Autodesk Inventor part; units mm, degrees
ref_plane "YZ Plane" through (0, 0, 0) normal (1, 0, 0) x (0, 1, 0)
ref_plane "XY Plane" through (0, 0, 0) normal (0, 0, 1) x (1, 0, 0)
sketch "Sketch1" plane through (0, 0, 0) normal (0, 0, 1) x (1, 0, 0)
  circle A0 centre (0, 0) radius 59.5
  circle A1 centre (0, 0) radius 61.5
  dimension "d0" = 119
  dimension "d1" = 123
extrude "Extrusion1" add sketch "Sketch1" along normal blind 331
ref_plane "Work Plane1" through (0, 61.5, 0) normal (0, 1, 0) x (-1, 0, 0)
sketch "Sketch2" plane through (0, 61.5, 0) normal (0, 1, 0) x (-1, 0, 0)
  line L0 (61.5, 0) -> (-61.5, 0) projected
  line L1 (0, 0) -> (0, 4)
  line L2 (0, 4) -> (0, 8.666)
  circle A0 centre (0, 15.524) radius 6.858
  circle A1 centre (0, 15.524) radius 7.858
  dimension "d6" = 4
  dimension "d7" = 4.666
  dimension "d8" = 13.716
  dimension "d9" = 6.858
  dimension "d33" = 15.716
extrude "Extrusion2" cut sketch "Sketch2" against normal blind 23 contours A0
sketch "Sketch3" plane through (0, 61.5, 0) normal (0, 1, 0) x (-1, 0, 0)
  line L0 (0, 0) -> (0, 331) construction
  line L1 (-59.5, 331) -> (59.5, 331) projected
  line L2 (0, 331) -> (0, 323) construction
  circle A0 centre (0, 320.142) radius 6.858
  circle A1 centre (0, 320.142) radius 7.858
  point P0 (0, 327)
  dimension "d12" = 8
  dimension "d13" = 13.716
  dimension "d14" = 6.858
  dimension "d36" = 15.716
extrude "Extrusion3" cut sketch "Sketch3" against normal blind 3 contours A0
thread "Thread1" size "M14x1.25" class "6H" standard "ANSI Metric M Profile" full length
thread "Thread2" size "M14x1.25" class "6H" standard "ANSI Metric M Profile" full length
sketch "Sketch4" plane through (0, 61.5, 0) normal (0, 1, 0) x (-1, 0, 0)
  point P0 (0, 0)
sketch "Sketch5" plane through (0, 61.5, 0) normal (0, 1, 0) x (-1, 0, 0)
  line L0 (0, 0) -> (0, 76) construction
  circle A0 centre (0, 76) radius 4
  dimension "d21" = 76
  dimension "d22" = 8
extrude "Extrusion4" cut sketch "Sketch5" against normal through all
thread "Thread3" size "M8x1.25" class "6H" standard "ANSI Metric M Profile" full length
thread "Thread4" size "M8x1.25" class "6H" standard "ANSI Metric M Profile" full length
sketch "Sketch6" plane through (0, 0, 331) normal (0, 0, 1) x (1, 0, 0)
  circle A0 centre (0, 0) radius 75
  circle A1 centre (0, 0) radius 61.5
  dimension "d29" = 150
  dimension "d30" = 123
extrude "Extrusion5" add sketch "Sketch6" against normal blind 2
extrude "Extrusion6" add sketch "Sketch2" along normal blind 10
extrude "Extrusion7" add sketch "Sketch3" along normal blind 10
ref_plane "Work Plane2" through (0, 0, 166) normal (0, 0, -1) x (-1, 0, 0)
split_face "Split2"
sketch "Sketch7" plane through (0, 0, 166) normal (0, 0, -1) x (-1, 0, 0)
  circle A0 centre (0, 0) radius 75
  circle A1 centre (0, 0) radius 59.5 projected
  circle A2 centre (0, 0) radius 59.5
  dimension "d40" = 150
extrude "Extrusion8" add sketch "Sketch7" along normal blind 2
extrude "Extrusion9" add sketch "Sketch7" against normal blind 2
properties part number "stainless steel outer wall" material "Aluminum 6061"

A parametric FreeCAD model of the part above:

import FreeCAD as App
import Part
import Sketcher
Q = App.Units.Quantity

doc = App.newDocument("Part")
body = doc.addObject("PartDesign::Body", "Body")
body.AllowCompound = True

sketch1 = body.newObject("Sketcher::SketchObject", "Sketch")
sketch1.AttachmentSupport = (doc.getObject("XY_Plane"), [""])
sketch1.MapMode = "FlatFace"
sketch1.addGeometry([
    Part.Circle(App.Vector(0, 0, 0), App.Vector(0, 0, 1), 62),
    Part.Circle(App.Vector(0, 0, 0), App.Vector(0, 0, 1), 60),
], False)
sketch1.addConstraint([
    Sketcher.Constraint("Coincident", 0, 3, -1, 1),
    Sketcher.Constraint("Coincident", 1, 3, -1, 1),
    Sketcher.Constraint("Diameter", 0, Q("123 mm")),
    Sketcher.Constraint("Diameter", 1, Q("119 mm")),
])
pad1 = body.newObject("PartDesign::Pad", "Pad")
pad1.Profile = sketch1
pad1.Length = 331

sketch2 = body.newObject("Sketcher::SketchObject", "Sketch001")
sketch2.AttachmentSupport = (doc.getObject("XZ_Plane"), [""])
sketch2.MapMode = "FlatFace"
sketch2.AttachmentOffset = App.Placement(App.Vector(0, 0, -61.5), App.Rotation())
sketch2.addGeometry(Part.Circle(App.Vector(0, 16, 0), App.Vector(0, 0, 1), 7), False)
sketch2.addConstraint([
    Sketcher.Constraint("PointOnObject", 0, 3, -2),
    Sketcher.Constraint("Diameter", 0, Q("13.716 mm")),
    Sketcher.Constraint("DistanceY", -1, 1, 0, 3, Q("15.524 mm")),
])
pocket1 = body.newObject("PartDesign::Pocket", "Pocket")
pocket1.Profile = sketch2
pocket1.Length = 23
pocket1.Reversed = True

sketch3 = body.newObject("Sketcher::SketchObject", "Sketch002")
sketch3.AttachmentSupport = (doc.getObject("XZ_Plane"), [""])
sketch3.MapMode = "FlatFace"
sketch3.AttachmentOffset = App.Placement(App.Vector(0, 0, -61.5), App.Rotation())
sketch3.addGeometry(Part.Circle(App.Vector(0, 320, 0), App.Vector(0, 0, 1), 7), False)
sketch3.addConstraint([
    Sketcher.Constraint("PointOnObject", 0, 3, -2),
    Sketcher.Constraint("Diameter", 0, Q("13.716 mm")),
    Sketcher.Constraint("DistanceY", -1, 1, 0, 3, Q("320.142 mm")),
])
pocket2 = body.newObject("PartDesign::Pocket", "Pocket001")
pocket2.Profile = sketch3
pocket2.Length = 3
pocket2.Reversed = True

sketch4 = body.newObject("Sketcher::SketchObject", "Sketch003")
sketch4.AttachmentSupport = (doc.getObject("XZ_Plane"), [""])
sketch4.MapMode = "FlatFace"
sketch4.AttachmentOffset = App.Placement(App.Vector(0, 0, -61.5), App.Rotation())
sketch4.addGeometry(Part.Circle(App.Vector(0, 76, 0), App.Vector(0, 0, 1), 4), False)
sketch4.addConstraint([
    Sketcher.Constraint("PointOnObject", 0, 3, -2),
    Sketcher.Constraint("Diameter", 0, Q("8 mm")),
    Sketcher.Constraint("DistanceY", -1, 1, 0, 3, Q("76 mm")),
])
pocket3 = body.newObject("PartDesign::Pocket", "Pocket002")
pocket3.Profile = sketch4
pocket3.Type = "ThroughAll"
pocket3.Reversed = True

sketch5 = body.newObject("Sketcher::SketchObject", "Sketch004")
sketch5.AttachmentSupport = (doc.getObject("XY_Plane"), [""])
sketch5.MapMode = "FlatFace"
sketch5.AttachmentOffset = App.Placement(App.Vector(0, 0, 331), App.Rotation())
sketch5.addGeometry([
    Part.Circle(App.Vector(0, 0, 0), App.Vector(0, 0, 1), 75),
    Part.Circle(App.Vector(0, 0, 0), App.Vector(0, 0, 1), 62),
], False)
sketch5.addConstraint([
    Sketcher.Constraint("Coincident", 0, 3, -1, 1),
    Sketcher.Constraint("Coincident", 1, 3, -1, 1),
    Sketcher.Constraint("Diameter", 0, Q("150 mm")),
    Sketcher.Constraint("Diameter", 1, Q("123 mm")),
])
pad2 = body.newObject("PartDesign::Pad", "Pad001")
pad2.Profile = sketch5
pad2.Length = 2
pad2.Reversed = True

sketch6 = body.newObject("Sketcher::SketchObject", "Sketch005")
sketch6.AttachmentSupport = (doc.getObject("XZ_Plane"), [""])
sketch6.MapMode = "FlatFace"
sketch6.AttachmentOffset = App.Placement(App.Vector(0, 0, -61.5), App.Rotation())
sketch6.addGeometry([
    Part.Circle(App.Vector(0, 16, 0), App.Vector(0, 0, 1), 8),
    Part.Circle(App.Vector(0, 16, 0), App.Vector(0, 0, 1), 7),
], False)
sketch6.addConstraint([
    Sketcher.Constraint("Coincident", 1, 3, 0, 3),
    Sketcher.Constraint("PointOnObject", 0, 3, -2),
    Sketcher.Constraint("Diameter", 0, Q("15.716 mm")),
    Sketcher.Constraint("Diameter", 1, Q("13.716 mm")),
    Sketcher.Constraint("DistanceY", -1, 1, 0, 3, Q("15.524 mm")),
])
pad3 = body.newObject("PartDesign::Pad", "Pad002")
pad3.Profile = sketch6
pad3.Length = 10
pad3.Reversed = True

sketch7 = body.newObject("Sketcher::SketchObject", "Sketch006")
sketch7.AttachmentSupport = (doc.getObject("XZ_Plane"), [""])
sketch7.MapMode = "FlatFace"
sketch7.AttachmentOffset = App.Placement(App.Vector(0, 0, -61.5), App.Rotation())
sketch7.addGeometry([
    Part.Circle(App.Vector(0, 320, 0), App.Vector(0, 0, 1), 8),
    Part.Circle(App.Vector(0, 320, 0), App.Vector(0, 0, 1), 7),
], False)
sketch7.addConstraint([
    Sketcher.Constraint("Coincident", 1, 3, 0, 3),
    Sketcher.Constraint("PointOnObject", 0, 3, -2),
    Sketcher.Constraint("Diameter", 0, Q("15.716 mm")),
    Sketcher.Constraint("Diameter", 1, Q("13.716 mm")),
    Sketcher.Constraint("DistanceY", -1, 1, 0, 3, Q("320.142 mm")),
])
pad4 = body.newObject("PartDesign::Pad", "Pad003")
pad4.Profile = sketch7
pad4.Length = 10
pad4.Reversed = True

sketch8 = body.newObject("Sketcher::SketchObject", "Sketch007")
sketch8.AttachmentSupport = (doc.getObject("XY_Plane"), [""])
sketch8.MapMode = "FlatFace"
sketch8.AttachmentOffset = App.Placement(App.Vector(0, 0, 166), App.Rotation())
sketch8.addGeometry([
    Part.Circle(App.Vector(0, 0, 0), App.Vector(0, 0, 1), 75),
    Part.Circle(App.Vector(0, 0, 0), App.Vector(0, 0, 1), 60),
], False)
sketch8.addConstraint([
    Sketcher.Constraint("Coincident", 0, 3, -1, 1),
    Sketcher.Constraint("Coincident", 1, 3, -1, 1),
    Sketcher.Constraint("Diameter", 0, Q("150 mm")),
    Sketcher.Constraint("Diameter", 1, Q("119 mm")),
])
pad5 = body.newObject("PartDesign::Pad", "Pad004")
pad5.Profile = sketch8
pad5.Length = 2
pad5.Reversed = True

sketch9 = body.newObject("Sketcher::SketchObject", "Sketch008")
sketch9.AttachmentSupport = (doc.getObject("XY_Plane"), [""])
sketch9.MapMode = "FlatFace"
sketch9.AttachmentOffset = App.Placement(App.Vector(0, 0, 166), App.Rotation())
sketch9.addGeometry([
    Part.Circle(App.Vector(0, 0, 0), App.Vector(0, 0, 1), 75),
    Part.Circle(App.Vector(0, 0, 0), App.Vector(0, 0, 1), 60),
], False)
sketch9.addConstraint([
    Sketcher.Constraint("Coincident", 0, 3, -1, 1),
    Sketcher.Constraint("Coincident", 1, 3, -1, 1),
    Sketcher.Constraint("Diameter", 0, Q("150 mm")),
    Sketcher.Constraint("Diameter", 1, Q("119 mm")),
])
pad6 = body.newObject("PartDesign::Pad", "Pad005")
pad6.Profile = sketch9
pad6.Length = 2

doc.recompute()
